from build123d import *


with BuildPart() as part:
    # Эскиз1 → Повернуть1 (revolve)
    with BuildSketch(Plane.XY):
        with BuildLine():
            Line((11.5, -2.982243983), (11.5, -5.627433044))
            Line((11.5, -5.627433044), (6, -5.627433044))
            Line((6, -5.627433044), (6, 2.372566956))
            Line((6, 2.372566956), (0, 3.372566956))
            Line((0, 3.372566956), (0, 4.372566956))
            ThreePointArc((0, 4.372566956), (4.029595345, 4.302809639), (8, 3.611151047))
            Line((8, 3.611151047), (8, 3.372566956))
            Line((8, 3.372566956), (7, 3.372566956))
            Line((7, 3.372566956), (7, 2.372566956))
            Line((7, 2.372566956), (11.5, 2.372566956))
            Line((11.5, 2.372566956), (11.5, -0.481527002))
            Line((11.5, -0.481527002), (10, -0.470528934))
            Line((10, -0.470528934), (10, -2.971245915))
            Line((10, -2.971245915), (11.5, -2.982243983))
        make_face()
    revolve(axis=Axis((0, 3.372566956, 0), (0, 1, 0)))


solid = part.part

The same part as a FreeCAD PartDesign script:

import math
import FreeCAD as App
import Part
import Sketcher

doc = App.newDocument("Part")
body = doc.addObject("PartDesign::Body", "Body")

# Sketch on XY plane
sketch1 = body.newObject("Sketcher::SketchObject", "Sketch")
sketch1.AttachmentSupport = (doc.getObject("XY_Plane"), [""])
sketch1.MapMode = "FlatFace"
sketch1.addGeometry([
    Part.LineSegment(App.Vector(11.5, -5.63, 0), App.Vector(11.5, -2.98, 0)),  # 0
    Part.LineSegment(App.Vector(11.5, -2.98, 0), App.Vector(10, -2.97, 0)),  # 1
    Part.LineSegment(App.Vector(10, -2.97, 0), App.Vector(10, -0.47, 0)),  # 2
    Part.LineSegment(App.Vector(10, -0.47, 0), App.Vector(11.5, -0.48, 0)),  # 3
    Part.LineSegment(App.Vector(11.5, -0.48, 0), App.Vector(11.5, 2.37, 0)),  # 4
    Part.LineSegment(App.Vector(11.5, 2.37, 0), App.Vector(7, 2.37, 0)),  # 5
    Part.LineSegment(App.Vector(7, 2.37, 0), App.Vector(7, 3.37, 0)),  # 6
    Part.LineSegment(App.Vector(7, 3.37, 0), App.Vector(8, 3.37, 0)),  # 7
    Part.LineSegment(App.Vector(8, 3.37, 0), App.Vector(8, 3.61, 0)),  # 8
    Part.ArcOfCircle(Part.Circle(App.Vector(1.57, -21.58, 0), App.Vector(0, 0, 1), 26), math.radians(75.67), math.radians(93.45)),  # 9
    Part.LineSegment(App.Vector(0, 4.37, 0), App.Vector(0, 3.37, 0)),  # 10
    Part.LineSegment(App.Vector(0, 3.37, 0), App.Vector(6, 2.37, 0)),  # 11
    Part.LineSegment(App.Vector(6, 2.37, 0), App.Vector(6, -5.63, 0)),  # 12
    Part.LineSegment(App.Vector(6, -5.63, 0), App.Vector(11.5, -5.63, 0)),  # 13
], False)
sketch1.addConstraint([
    Sketcher.Constraint("Coincident", 0, 2, 1, 1),
    Sketcher.Constraint("Coincident", 1, 2, 2, 1),
    Sketcher.Constraint("Coincident", 2, 2, 3, 1),
    Sketcher.Constraint("Coincident", 3, 2, 4, 1),
    Sketcher.Constraint("Coincident", 4, 2, 5, 1),
    Sketcher.Constraint("Coincident", 5, 2, 6, 1),
    Sketcher.Constraint("Coincident", 6, 2, 7, 1),
    Sketcher.Constraint("Coincident", 7, 2, 8, 1),
    Sketcher.Constraint("Coincident", 8, 2, 9, 1),
    Sketcher.Constraint("Coincident", 9, 2, 10, 1),
    Sketcher.Constraint("Coincident", 10, 2, 11, 1),
    Sketcher.Constraint("Coincident", 11, 2, 12, 1),
    Sketcher.Constraint("Coincident", 12, 2, 13, 1),
    Sketcher.Constraint("Coincident", 13, 2, 0, 1),
    Sketcher.Constraint("Vertical", 0),
    Sketcher.Constraint("Vertical", 2),
    Sketcher.Constraint("Vertical", 4),
    Sketcher.Constraint("Horizontal", 5),
    Sketcher.Constraint("Vertical", 6),
    Sketcher.Constraint("Horizontal", 7),
    Sketcher.Constraint("Vertical", 8),
    Sketcher.Constraint("Vertical", 10),
    Sketcher.Constraint("Vertical", 12),
    Sketcher.Constraint("Horizontal", 13),
    Sketcher.Constraint("PointOnObject", 9, 2, -2),
    Sketcher.Constraint("Parallel", 1, 3),
    Sketcher.Constraint("Horizontal", 7, 2, 10, 2),
    Sketcher.Constraint("Horizontal", 5, 2, 11, 2),
    Sketcher.Constraint("Vertical", 0, 2, 3, 2),
    Sketcher.Constraint("Equal", 7, 6),
    Sketcher.Constraint("Equal", 6, 10),
    Sketcher.Constraint("Radius", 9, 26.0),
    Sketcher.Constraint("DistanceX", 7, 1, 7, 2, 1.0),
    Sketcher.Constraint("DistanceY", 12, 2, 12, 1, 8.0),
    Sketcher.Constraint("DistanceX", 5, 2, 5, 1, 4.5),
    Sketcher.Constraint("DistanceX", 13, 1, 13, 2, 5.5),
    Sketcher.Constraint("DistanceX", -1, 1, 1, 2, 10.0),
    Sketcher.Constraint("DistanceX", -1, 1, 5, 2, 7.0),
    Sketcher.Constraint("DistanceY", 0, 2, 1, 2, 0.010998),
    Sketcher.Constraint("DistanceY", 0, 1, 0, 2, 2.645189),
    Sketcher.Constraint("DistanceY", 2, 1, 2, 2, 2.500717),
    Sketcher.Constraint("DistanceY", 8, 1, 8, 2, 0.238584),
    Sketcher.Constraint("DistanceY", 9, 3, -1, 1, 21.580222),
])
revolution = body.newObject("PartDesign::Revolution", "Revolution")
revolution.Profile = sketch1
revolution.ReferenceAxis = (sketch1, ["V_Axis"])
revolution.Angle = 360

doc.recompute()
